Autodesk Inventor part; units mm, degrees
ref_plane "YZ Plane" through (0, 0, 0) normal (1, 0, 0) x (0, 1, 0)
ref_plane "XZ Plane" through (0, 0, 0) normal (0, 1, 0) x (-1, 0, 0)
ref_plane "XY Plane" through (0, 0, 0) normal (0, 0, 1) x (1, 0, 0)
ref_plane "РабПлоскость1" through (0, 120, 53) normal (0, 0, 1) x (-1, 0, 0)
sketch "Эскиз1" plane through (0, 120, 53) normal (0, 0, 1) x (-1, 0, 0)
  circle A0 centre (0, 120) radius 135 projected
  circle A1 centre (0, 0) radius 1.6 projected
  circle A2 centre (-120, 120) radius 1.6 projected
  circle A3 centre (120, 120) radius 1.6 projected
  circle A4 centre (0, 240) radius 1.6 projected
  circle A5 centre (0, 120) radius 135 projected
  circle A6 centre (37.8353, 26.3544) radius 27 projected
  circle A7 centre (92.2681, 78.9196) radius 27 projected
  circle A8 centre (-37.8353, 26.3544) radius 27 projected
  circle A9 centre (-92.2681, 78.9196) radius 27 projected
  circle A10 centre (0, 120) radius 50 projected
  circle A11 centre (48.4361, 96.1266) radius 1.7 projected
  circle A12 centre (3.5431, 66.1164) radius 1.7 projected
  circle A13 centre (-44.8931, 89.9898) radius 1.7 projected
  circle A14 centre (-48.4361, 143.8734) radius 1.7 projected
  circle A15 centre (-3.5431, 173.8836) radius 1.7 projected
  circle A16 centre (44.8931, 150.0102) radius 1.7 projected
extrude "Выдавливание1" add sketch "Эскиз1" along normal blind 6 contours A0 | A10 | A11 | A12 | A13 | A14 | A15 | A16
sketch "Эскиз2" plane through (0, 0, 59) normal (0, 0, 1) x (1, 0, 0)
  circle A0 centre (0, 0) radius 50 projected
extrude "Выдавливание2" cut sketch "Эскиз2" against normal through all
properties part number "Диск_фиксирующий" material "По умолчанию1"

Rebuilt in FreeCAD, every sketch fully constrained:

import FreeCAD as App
import Part
import Sketcher

V = App.Vector

doc = App.newDocument("Part")
body = doc.addObject("PartDesign::Body", "Body")

# Sketch on XY plane
sketch1 = body.newObject("Sketcher::SketchObject", "Sketch")
sketch1.AttachmentSupport = (doc.getObject("XY_Plane"), [""])
sketch1.MapMode = "FlatFace"
sketch1.AttachmentOffset = App.Placement(V(0, 0, 53), App.Rotation())
sketch1.addGeometry([
    Part.Circle(V(0, 0, 0), V(0, 0, 1), 135),  # 0
    Part.Circle(V(37.8, 93.6, 0), V(0, 0, 1), 27),  # 1
    Part.Circle(V(92.3, 41.1, 0), V(0, 0, 1), 27),  # 2
    Part.Circle(V(0, 120, 0), V(0, 0, 1), 1.6),  # 3
    Part.Circle(V(-37.8, 93.6, 0), V(0, 0, 1), 27),  # 4
    Part.Circle(V(-92.3, 41.1, 0), V(0, 0, 1), 27),  # 5
    Part.Circle(V(120, 0, 0), V(0, 0, 1), 1.6),  # 6
    Part.Circle(V(-120, 0, 0), V(0, 0, 1), 1.6),  # 7
    Part.Circle(V(0, -120, 0), V(0, 0, 1), 1.6),  # 8
], False)
sketch1.addConstraint([
    Sketcher.Constraint("Coincident", 0, 3, -1, 1),
    Sketcher.Constraint("Equal", 1, 2),
    Sketcher.Constraint("Equal", 2, 4),
    Sketcher.Constraint("Equal", 4, 5),
    Sketcher.Constraint("Equal", 3, 6),
    Sketcher.Constraint("Equal", 6, 7),
    Sketcher.Constraint("Equal", 7, 8),
    Sketcher.Constraint("Symmetric", 6, 3, 7, 3, -1, 1),
    Sketcher.Constraint("Symmetric", 3, 3, 8, 3, -1, 1),
    Sketcher.Constraint("Symmetric", 1, 3, 4, 3, -2),
    Sketcher.Constraint("Symmetric", 2, 3, 5, 3, -2),
    Sketcher.Constraint("PointOnObject", 3, 3, -2),
    Sketcher.Constraint("PointOnObject", 6, 3, -1),
    Sketcher.Constraint("Diameter", 0, 270.0),
    Sketcher.Constraint("Diameter", 1, 54.0),
    Sketcher.Constraint("Diameter", 3, 3.2),
    Sketcher.Constraint("DistanceY", -1, 1, 3, 3, 120.0),
    Sketcher.Constraint("DistanceX", -1, 1, 6, 3, 120.0),
    Sketcher.Constraint("DistanceX", -1, 1, 2, 3, 92.268),
    Sketcher.Constraint("DistanceX", -1, 1, 1, 3, 37.8353),
    Sketcher.Constraint("DistanceY", -1, 1, 1, 3, 93.6456),
    Sketcher.Constraint("DistanceY", -1, 1, 2, 3, 41.0804),
])
pad1 = body.newObject("PartDesign::Pad", "Pad")
pad1.Profile = sketch1
pad1.Length = 6

# Sketch on XY plane
sketch2 = body.newObject("Sketcher::SketchObject", "Sketch001")
sketch2.AttachmentSupport = (doc.getObject("XY_Plane"), [""])
sketch2.MapMode = "FlatFace"
sketch2.AttachmentOffset = App.Placement(V(0, 0, 59), App.Rotation())
sketch2.addGeometry(Part.Circle(V(0, 0, 0), V(0, 0, 1), 50), False)
sketch2.addConstraint([
    Sketcher.Constraint("Coincident", 0, 3, -1, 1),
    Sketcher.Constraint("Diameter", 0, 100.0),
])
pocket1 = body.newObject("PartDesign::Pocket", "Pocket")
pocket1.Profile = sketch2
pocket1.Type = "ThroughAll"

doc.recompute()
